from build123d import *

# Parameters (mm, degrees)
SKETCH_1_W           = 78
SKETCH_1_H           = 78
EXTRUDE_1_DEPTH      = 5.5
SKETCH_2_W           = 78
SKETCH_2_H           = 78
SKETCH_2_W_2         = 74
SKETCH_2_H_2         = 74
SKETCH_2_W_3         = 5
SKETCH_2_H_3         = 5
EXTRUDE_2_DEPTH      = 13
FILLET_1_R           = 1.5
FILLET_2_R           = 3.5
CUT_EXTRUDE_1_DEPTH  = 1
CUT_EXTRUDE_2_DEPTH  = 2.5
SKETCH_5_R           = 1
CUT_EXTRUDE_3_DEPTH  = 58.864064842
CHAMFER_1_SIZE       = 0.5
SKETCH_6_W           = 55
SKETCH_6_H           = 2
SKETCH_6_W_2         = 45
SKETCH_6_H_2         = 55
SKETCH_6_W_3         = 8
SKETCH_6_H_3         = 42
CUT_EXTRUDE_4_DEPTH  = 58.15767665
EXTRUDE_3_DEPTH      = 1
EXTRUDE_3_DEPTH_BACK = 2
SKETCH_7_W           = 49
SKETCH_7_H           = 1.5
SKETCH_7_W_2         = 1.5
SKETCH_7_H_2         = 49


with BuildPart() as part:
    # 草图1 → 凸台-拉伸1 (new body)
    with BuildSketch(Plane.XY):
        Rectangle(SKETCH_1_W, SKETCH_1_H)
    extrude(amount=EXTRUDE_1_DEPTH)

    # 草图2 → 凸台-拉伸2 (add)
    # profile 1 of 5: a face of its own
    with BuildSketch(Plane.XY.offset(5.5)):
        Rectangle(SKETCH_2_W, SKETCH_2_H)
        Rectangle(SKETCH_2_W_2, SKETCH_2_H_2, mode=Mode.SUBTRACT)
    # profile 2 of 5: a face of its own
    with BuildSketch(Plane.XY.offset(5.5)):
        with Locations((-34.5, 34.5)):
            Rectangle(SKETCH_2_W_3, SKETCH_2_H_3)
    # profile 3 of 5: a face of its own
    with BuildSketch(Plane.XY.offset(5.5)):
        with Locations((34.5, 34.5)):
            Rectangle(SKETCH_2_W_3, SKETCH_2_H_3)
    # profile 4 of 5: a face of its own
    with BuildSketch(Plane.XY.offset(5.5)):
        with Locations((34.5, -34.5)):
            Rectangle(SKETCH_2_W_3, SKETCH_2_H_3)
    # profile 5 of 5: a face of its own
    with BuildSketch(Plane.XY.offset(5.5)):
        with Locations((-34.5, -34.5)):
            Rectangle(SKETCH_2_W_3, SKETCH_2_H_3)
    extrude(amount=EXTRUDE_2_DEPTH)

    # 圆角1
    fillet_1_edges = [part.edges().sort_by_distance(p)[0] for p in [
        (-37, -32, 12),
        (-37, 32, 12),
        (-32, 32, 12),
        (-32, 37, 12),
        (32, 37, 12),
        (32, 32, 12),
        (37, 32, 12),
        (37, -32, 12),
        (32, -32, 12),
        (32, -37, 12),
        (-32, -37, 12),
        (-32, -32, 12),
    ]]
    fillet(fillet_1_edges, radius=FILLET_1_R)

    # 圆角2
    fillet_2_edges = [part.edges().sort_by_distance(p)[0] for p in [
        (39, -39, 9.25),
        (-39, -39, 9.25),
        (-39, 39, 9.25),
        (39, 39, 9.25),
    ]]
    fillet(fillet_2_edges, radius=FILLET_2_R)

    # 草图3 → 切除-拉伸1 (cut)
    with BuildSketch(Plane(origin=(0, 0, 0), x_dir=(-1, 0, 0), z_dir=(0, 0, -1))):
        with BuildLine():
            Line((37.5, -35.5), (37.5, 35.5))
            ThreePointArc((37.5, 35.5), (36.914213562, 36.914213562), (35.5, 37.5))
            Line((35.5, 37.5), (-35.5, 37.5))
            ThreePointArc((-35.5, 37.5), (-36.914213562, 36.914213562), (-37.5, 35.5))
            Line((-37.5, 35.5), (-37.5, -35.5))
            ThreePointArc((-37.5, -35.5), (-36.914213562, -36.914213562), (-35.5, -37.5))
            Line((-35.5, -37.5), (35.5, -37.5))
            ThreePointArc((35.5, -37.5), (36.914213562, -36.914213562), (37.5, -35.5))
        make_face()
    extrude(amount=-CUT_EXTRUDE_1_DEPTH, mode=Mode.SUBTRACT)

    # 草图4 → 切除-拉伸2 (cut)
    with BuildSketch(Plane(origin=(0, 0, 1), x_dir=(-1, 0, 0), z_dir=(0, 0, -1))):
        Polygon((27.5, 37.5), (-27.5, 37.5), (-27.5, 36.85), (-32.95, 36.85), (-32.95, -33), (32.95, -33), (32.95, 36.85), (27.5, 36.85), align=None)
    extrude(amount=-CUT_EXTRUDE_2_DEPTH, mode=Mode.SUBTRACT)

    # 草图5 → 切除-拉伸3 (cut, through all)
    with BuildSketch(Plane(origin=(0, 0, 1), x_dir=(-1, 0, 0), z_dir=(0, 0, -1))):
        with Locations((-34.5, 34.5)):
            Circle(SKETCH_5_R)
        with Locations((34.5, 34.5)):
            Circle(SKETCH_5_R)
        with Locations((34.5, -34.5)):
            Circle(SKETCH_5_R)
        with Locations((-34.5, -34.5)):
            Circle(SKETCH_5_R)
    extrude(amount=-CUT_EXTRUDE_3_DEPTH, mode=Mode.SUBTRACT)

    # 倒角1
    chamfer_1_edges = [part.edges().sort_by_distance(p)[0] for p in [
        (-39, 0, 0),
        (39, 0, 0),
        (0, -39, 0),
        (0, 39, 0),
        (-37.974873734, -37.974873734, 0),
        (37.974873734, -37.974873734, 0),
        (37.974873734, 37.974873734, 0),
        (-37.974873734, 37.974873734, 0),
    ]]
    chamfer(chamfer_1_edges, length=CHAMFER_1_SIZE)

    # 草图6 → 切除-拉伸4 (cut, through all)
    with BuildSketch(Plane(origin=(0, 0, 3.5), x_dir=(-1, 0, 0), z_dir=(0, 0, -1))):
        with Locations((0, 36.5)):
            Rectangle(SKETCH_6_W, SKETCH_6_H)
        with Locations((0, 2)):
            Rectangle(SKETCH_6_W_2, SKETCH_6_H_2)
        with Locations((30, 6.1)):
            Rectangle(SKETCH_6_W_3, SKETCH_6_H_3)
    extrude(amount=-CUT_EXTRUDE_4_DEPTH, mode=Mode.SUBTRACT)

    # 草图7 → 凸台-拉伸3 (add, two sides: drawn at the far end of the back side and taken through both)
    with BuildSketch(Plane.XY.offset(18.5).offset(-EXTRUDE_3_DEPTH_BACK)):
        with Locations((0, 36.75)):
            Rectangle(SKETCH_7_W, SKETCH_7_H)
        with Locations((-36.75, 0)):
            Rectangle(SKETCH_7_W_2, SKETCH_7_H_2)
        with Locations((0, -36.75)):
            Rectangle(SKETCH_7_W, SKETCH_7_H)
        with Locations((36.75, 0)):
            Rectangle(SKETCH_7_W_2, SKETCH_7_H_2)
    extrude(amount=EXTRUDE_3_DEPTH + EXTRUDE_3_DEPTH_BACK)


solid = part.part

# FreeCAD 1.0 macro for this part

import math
import FreeCAD as App
import Part
import Sketcher

V = App.Vector


def edges_at(feature, points):
    """Names of the edges that pass closest to the given points."""
    edges = feature.Shape.Edges
    near = lambda p: min(range(len(edges)), key=lambda i: edges[i].distToShape(Part.Vertex(*p))[0])
    return sorted({f"Edge{near(p) + 1}" for p in points})

doc = App.newDocument("Part")
body = doc.addObject("PartDesign::Body", "Body")

sketch1 = doc.addObject("Sketcher::SketchObject", "Sketch")
body.addObject(sketch1)
sketch1.AttachmentSupport = (doc.XY_Plane, [""])
sketch1.MapMode = "FlatFace"
sketch1.addGeometry([
    Part.LineSegment(V(-39, 39, 0), V(-39, -39, 0)),
    Part.LineSegment(V(-39, -39, 0), V(39, -39, 0)),
    Part.LineSegment(V(39, -39, 0), V(39, 39, 0)),
    Part.LineSegment(V(39, 39, 0), V(-39, 39, 0)),
], False)
sketch1.addConstraint([
    Sketcher.Constraint("Coincident", 0, 2, 1, 1),
    Sketcher.Constraint("Coincident", 1, 2, 2, 1),
    Sketcher.Constraint("Coincident", 2, 2, 3, 1),
    Sketcher.Constraint("Coincident", 3, 2, 0, 1),
    Sketcher.Constraint("Vertical", 0),
    Sketcher.Constraint("Horizontal", 1),
    Sketcher.Constraint("Vertical", 2),
    Sketcher.Constraint("Horizontal", 3),
    Sketcher.Constraint("Symmetric", 0, 2, 2, 2, -1, 1),
    Sketcher.Constraint("Equal", 3, 0),
    Sketcher.Constraint("DistanceX", 1, 1, 1, 2, 78.0),
])
pad1 = doc.addObject("PartDesign::Pad", "Pad")
body.addObject(pad1)
pad1.Profile = sketch1
pad1.Length = 5.5

sketch2 = doc.addObject("Sketcher::SketchObject", "Sketch001")
body.addObject(sketch2)
sketch2.AttachmentSupport = (doc.XY_Plane, [""])
sketch2.MapMode = "FlatFace"
sketch2.AttachmentOffset = App.Placement(V(0, 0, 5.5), App.Rotation())
sketch2.addGeometry([
    Part.LineSegment(V(-39, 39, 0), V(-39, -39, 0)),
    Part.LineSegment(V(-39, -39, 0), V(39, -39, 0)),
    Part.LineSegment(V(39, -39, 0), V(39, 39, 0)),
    Part.LineSegment(V(39, 39, 0), V(-39, 39, 0)),
    Part.LineSegment(V(32, -37, 0), V(-32, -37, 0)),
    Part.LineSegment(V(-32, -37, 0), V(-32, -32, 0)),
    Part.LineSegment(V(-32, -32, 0), V(-37, -32, 0)),
    Part.LineSegment(V(-37, -32, 0), V(-37, 32, 0)),
    Part.LineSegment(V(-37, 32, 0), V(-32, 32, 0)),
    Part.LineSegment(V(-32, 32, 0), V(-32, 37, 0)),
    Part.LineSegment(V(-32, 37, 0), V(32, 37, 0)),
    Part.LineSegment(V(32, 37, 0), V(32, 32, 0)),
    Part.LineSegment(V(32, 32, 0), V(37, 32, 0)),
    Part.LineSegment(V(37, 32, 0), V(37, -32, 0)),
    Part.LineSegment(V(37, -32, 0), V(32, -32, 0)),
    Part.LineSegment(V(32, -32, 0), V(32, -37, 0)),
], False)
sketch2.addConstraint([
    Sketcher.Constraint("Coincident", 0, 2, 1, 1),
    Sketcher.Constraint("Coincident", 1, 2, 2, 1),
    Sketcher.Constraint("Coincident", 2, 2, 3, 1),
    Sketcher.Constraint("Coincident", 3, 2, 0, 1),
    Sketcher.Constraint("Coincident", 4, 2, 5, 1),
    Sketcher.Constraint("Coincident", 5, 2, 6, 1),
    Sketcher.Constraint("Coincident", 6, 2, 7, 1),
    Sketcher.Constraint("Coincident", 7, 2, 8, 1),
    Sketcher.Constraint("Coincident", 8, 2, 9, 1),
    Sketcher.Constraint("Coincident", 9, 2, 10, 1),
    Sketcher.Constraint("Coincident", 10, 2, 11, 1),
    Sketcher.Constraint("Coincident", 11, 2, 12, 1),
    Sketcher.Constraint("Coincident", 12, 2, 13, 1),
    Sketcher.Constraint("Coincident", 13, 2, 14, 1),
    Sketcher.Constraint("Coincident", 14, 2, 15, 1),
    Sketcher.Constraint("Coincident", 15, 2, 4, 1),
    Sketcher.Constraint("Vertical", 0),
    Sketcher.Constraint("Horizontal", 1),
    Sketcher.Constraint("Vertical", 2),
    Sketcher.Constraint("Horizontal", 3),
    Sketcher.Constraint("Horizontal", 4),
    Sketcher.Constraint("Vertical", 5),
    Sketcher.Constraint("Horizontal", 6),
    Sketcher.Constraint("Vertical", 7),
    Sketcher.Constraint("Horizontal", 8),
    Sketcher.Constraint("Vertical", 9),
    Sketcher.Constraint("Horizontal", 10),
    Sketcher.Constraint("Vertical", 11),
    Sketcher.Constraint("Horizontal", 12),
    Sketcher.Constraint("Vertical", 13),
    Sketcher.Constraint("Horizontal", 14),
    Sketcher.Constraint("Vertical", 15),
    Sketcher.Constraint("Symmetric", 0, 2, 2, 2, -1, 1),
    Sketcher.Constraint("Symmetric", 4, 2, 10, 2, -1, 1),
    Sketcher.Constraint("Symmetric", 6, 2, 12, 2, -1, 1),
    Sketcher.Constraint("Symmetric", 8, 2, 14, 2, -1, 1),
    Sketcher.Constraint("Symmetric", 8, 2, 11, 2, -2),
    Sketcher.Constraint("Equal", 3, 0),
    Sketcher.Constraint("Equal", 14, 5),
    Sketcher.Constraint("Equal", 10, 7),
    Sketcher.Constraint("DistanceX", 1, 1, 1, 2, 78.0),
    Sketcher.Constraint("DistanceX", 4, 2, 4, 1, 64.0),
    Sketcher.Constraint("DistanceX", 6, 2, 6, 1, 5.0),
])
pad2 = doc.addObject("PartDesign::Pad", "Pad001")
body.addObject(pad2)
pad2.Profile = sketch2
pad2.Length = 13
doc.recompute()

fillet = doc.addObject("PartDesign::Fillet", "Fillet")
body.addObject(fillet)
fillet.Base = (pad2, edges_at(pad2, [
    (-37, -32, 12),
    (-37, 32, 12),
    (-32, 32, 12),
    (-32, 37, 12),
    (32, 37, 12),
    (32, 32, 12),
    (37, 32, 12),
    (37, -32, 12),
    (32, -32, 12),
    (32, -37, 12),
    (-32, -37, 12),
    (-32, -32, 12),
]))
fillet.Radius = 1.5
doc.recompute()

fillet2 = doc.addObject("PartDesign::Fillet", "Fillet001")
body.addObject(fillet2)
fillet2.Base = (fillet, edges_at(fillet, [
    (39, -39, 9.25),
    (-39, -39, 9.25),
    (-39, 39, 9.25),
    (39, 39, 9.25),
]))
fillet2.Radius = 3.5

sketch3 = doc.addObject("Sketcher::SketchObject", "Sketch002")
body.addObject(sketch3)
sketch3.AttachmentSupport = (doc.XY_Plane, [""])
sketch3.MapMode = "FlatFace"
sketch3.addGeometry([
    Part.LineSegment(V(-37.5, -35.5, 0), V(-37.5, 35.5, 0)),
    Part.ArcOfCircle(Part.Circle(V(-35.5, 35.5, 0), V(0, 0, 1), 2), math.radians(90), math.radians(180)),
    Part.LineSegment(V(-35.5, 37.5, 0), V(35.5, 37.5, 0)),
    Part.ArcOfCircle(Part.Circle(V(35.5, 35.5, 0), V(0, 0, 1), 2), math.radians(0), math.radians(90)),
    Part.LineSegment(V(37.5, 35.5, 0), V(37.5, -35.5, 0)),
    Part.ArcOfCircle(Part.Circle(V(35.5, -35.5, 0), V(0, 0, 1), 2), math.radians(-90), math.radians(0)),
    Part.LineSegment(V(35.5, -37.5, 0), V(-35.5, -37.5, 0)),
    Part.ArcOfCircle(Part.Circle(V(-35.5, -35.5, 0), V(0, 0, 1), 2), math.radians(-180), math.radians(-90)),
], False)
sketch3.addConstraint([
    Sketcher.Constraint("Tangent", 0, 2, 1, 2),
    Sketcher.Constraint("Tangent", 1, 1, 2, 1),
    Sketcher.Constraint("Tangent", 2, 2, 3, 2),
    Sketcher.Constraint("Tangent", 3, 1, 4, 1),
    Sketcher.Constraint("Tangent", 4, 2, 5, 2),
    Sketcher.Constraint("Tangent", 5, 1, 6, 1),
    Sketcher.Constraint("Tangent", 6, 2, 7, 2),
    Sketcher.Constraint("Tangent", 7, 1, 0, 1),
    Sketcher.Constraint("Vertical", 0),
    Sketcher.Constraint("Horizontal", 2),
    Sketcher.Constraint("Vertical", 4),
    Sketcher.Constraint("Horizontal", 6),
    Sketcher.Constraint("Equal", 1, 3),
    Sketcher.Constraint("Equal", 3, 5),
    Sketcher.Constraint("Equal", 5, 7),
    Sketcher.Constraint("Symmetric", 1, 3, 5, 3, -1, 1),
    Sketcher.Constraint("Equal", 6, 0),
    Sketcher.Constraint("Radius", 1, 2.0),
    Sketcher.Constraint("DistanceX", 2, 1, 2, 2, 71.0),
])
pocket1 = doc.addObject("PartDesign::Pocket", "Pocket")
body.addObject(pocket1)
pocket1.Profile = sketch3
pocket1.Length = 1
pocket1.Reversed = True

sketch4 = doc.addObject("Sketcher::SketchObject", "Sketch003")
body.addObject(sketch4)
sketch4.AttachmentSupport = (doc.XY_Plane, [""])
sketch4.MapMode = "FlatFace"
sketch4.AttachmentOffset = App.Placement(V(0, 0, 1), App.Rotation())
sketch4.addGeometry([
    Part.LineSegment(V(-27.5, 37.5, 0), V(27.5, 37.5, 0)),
    Part.LineSegment(V(27.5, 37.5, 0), V(27.5, 36.9, 0)),
    Part.LineSegment(V(27.5, 36.9, 0), V(33, 36.9, 0)),
    Part.LineSegment(V(33, 36.9, 0), V(33, -33, 0)),
    Part.LineSegment(V(33, -33, 0), V(-33, -33, 0)),
    Part.LineSegment(V(-33, -33, 0), V(-33, 36.9, 0)),
    Part.LineSegment(V(-33, 36.9, 0), V(-27.5, 36.9, 0)),
    Part.LineSegment(V(-27.5, 36.9, 0), V(-27.5, 37.5, 0)),
], False)
sketch4.addConstraint([
    Sketcher.Constraint("Coincident", 0, 2, 1, 1),
    Sketcher.Constraint("Coincident", 1, 2, 2, 1),
    Sketcher.Constraint("Coincident", 2, 2, 3, 1),
    Sketcher.Constraint("Coincident", 3, 2, 4, 1),
    Sketcher.Constraint("Coincident", 4, 2, 5, 1),
    Sketcher.Constraint("Coincident", 5, 2, 6, 1),
    Sketcher.Constraint("Coincident", 6, 2, 7, 1),
    Sketcher.Constraint("Coincident", 7, 2, 0, 1),
    Sketcher.Constraint("Horizontal", 0),
    Sketcher.Constraint("Vertical", 1),
    Sketcher.Constraint("Horizontal", 2),
    Sketcher.Constraint("Vertical", 3),
    Sketcher.Constraint("Horizontal", 4),
    Sketcher.Constraint("Vertical", 5),
    Sketcher.Constraint("Horizontal", 6),
    Sketcher.Constraint("Vertical", 7),
    Sketcher.Constraint("Symmetric", 2, 2, 5, 2, -2),
    Sketcher.Constraint("Equal", 2, 6),
    Sketcher.Constraint("DistanceX", 0, 1, 0, 2, 55.0),
    Sketcher.Constraint("DistanceX", 4, 2, 4, 1, 65.9),
    Sketcher.Constraint("DistanceY", 3, 2, -1, 1, 33.0),
    Sketcher.Constraint("DistanceY", 1, 2, 1, 1, 0.65),
    Sketcher.Constraint("DistanceY", 3, 2, 3, 1, 69.85),
])
pocket2 = doc.addObject("PartDesign::Pocket", "Pocket001")
body.addObject(pocket2)
pocket2.Profile = sketch4
pocket2.Length = 2.5
pocket2.Reversed = True

sketch5 = doc.addObject("Sketcher::SketchObject", "Sketch004")
body.addObject(sketch5)
sketch5.AttachmentSupport = (doc.XY_Plane, [""])
sketch5.MapMode = "FlatFace"
sketch5.AttachmentOffset = App.Placement(V(0, 0, 1), App.Rotation())
sketch5.addGeometry([
    Part.Circle(V(34.5, 34.5, 0), V(0, 0, 1), 1),
    Part.Circle(V(-34.5, 34.5, 0), V(0, 0, 1), 1),
    Part.Circle(V(-34.5, -34.5, 0), V(0, 0, 1), 1),
    Part.Circle(V(34.5, -34.5, 0), V(0, 0, 1), 1),
], False)
sketch5.addConstraint([
    Sketcher.Constraint("Equal", 0, 1),
    Sketcher.Constraint("Equal", 1, 2),
    Sketcher.Constraint("Equal", 2, 3),
    Sketcher.Constraint("Symmetric", 0, 3, 2, 3, -1, 1),
    Sketcher.Constraint("Symmetric", 1, 3, 3, 3, -1, 1),
    Sketcher.Constraint("Symmetric", 0, 3, 1, 3, -2),
    Sketcher.Constraint("Diameter", 0, 2.0),
    Sketcher.Constraint("DistanceX", 1, 3, 0, 3, 69.0),
    Sketcher.Constraint("DistanceY", 2, 3, 1, 3, 69.0),
])
pocket3 = doc.addObject("PartDesign::Pocket", "Pocket002")
body.addObject(pocket3)
pocket3.Profile = sketch5
pocket3.Type = "ThroughAll"
pocket3.Reversed = True
doc.recompute()

chamfer = doc.addObject("PartDesign::Chamfer", "Chamfer")
body.addObject(chamfer)
chamfer.Base = (pocket3, edges_at(pocket3, [
    (-39, 0, 0),
    (39, 0, 0),
    (0, -39, 0),
    (0, 39, 0),
    (-37.975, -37.975, 0),
    (37.975, -37.975, 0),
    (37.975, 37.975, 0),
    (-37.975, 37.975, 0),
]))
chamfer.Size = 0.5

sketch6 = doc.addObject("Sketcher::SketchObject", "Sketch005")
body.addObject(sketch6)
sketch6.AttachmentSupport = (doc.XY_Plane, [""])
sketch6.MapMode = "FlatFace"
sketch6.AttachmentOffset = App.Placement(V(0, 0, 3.5), App.Rotation())
sketch6.addGeometry([
    Part.LineSegment(V(27.5, 37.5, 0), V(27.5, 35.5, 0)),
    Part.LineSegment(V(27.5, 35.5, 0), V(-27.5, 35.5, 0)),
    Part.LineSegment(V(-27.5, 35.5, 0), V(-27.5, 37.5, 0)),
    Part.LineSegment(V(-27.5, 37.5, 0), V(27.5, 37.5, 0)),
    Part.LineSegment(V(22.5, 29.5, 0), V(22.5, -25.5, 0)),
    Part.LineSegment(V(22.5, -25.5, 0), V(-22.5, -25.5, 0)),
    Part.LineSegment(V(-22.5, -25.5, 0), V(-22.5, 29.5, 0)),
    Part.LineSegment(V(-22.5, 29.5, 0), V(22.5, 29.5, 0)),
    Part.LineSegment(V(-26, 27.1, 0), V(-26, -14.9, 0)),
    Part.LineSegment(V(-26, -14.9, 0), V(-34, -14.9, 0)),
    Part.LineSegment(V(-34, -14.9, 0), V(-34, 27.1, 0)),
    Part.LineSegment(V(-34, 27.1, 0), V(-26, 27.1, 0)),
], False)
sketch6.addConstraint([
    Sketcher.Constraint("Coincident", 0, 2, 1, 1),
    Sketcher.Constraint("Coincident", 1, 2, 2, 1),
    Sketcher.Constraint("Coincident", 2, 2, 3, 1),
    Sketcher.Constraint("Coincident", 3, 2, 0, 1),
    Sketcher.Constraint("Coincident", 4, 2, 5, 1),
    Sketcher.Constraint("Coincident", 5, 2, 6, 1),
    Sketcher.Constraint("Coincident", 6, 2, 7, 1),
    Sketcher.Constraint("Coincident", 7, 2, 4, 1),
    Sketcher.Constraint("Coincident", 8, 2, 9, 1),
    Sketcher.Constraint("Coincident", 9, 2, 10, 1),
    Sketcher.Constraint("Coincident", 10, 2, 11, 1),
    Sketcher.Constraint("Coincident", 11, 2, 8, 1),
    Sketcher.Constraint("Vertical", 0),
    Sketcher.Constraint("Horizontal", 1),
    Sketcher.Constraint("Vertical", 2),
    Sketcher.Constraint("Horizontal", 3),
    Sketcher.Constraint("Vertical", 4),
    Sketcher.Constraint("Horizontal", 5),
    Sketcher.Constraint("Vertical", 6),
    Sketcher.Constraint("Horizontal", 7),
    Sketcher.Constraint("Vertical", 8),
    Sketcher.Constraint("Horizontal", 9),
    Sketcher.Constraint("Vertical", 10),
    Sketcher.Constraint("Horizontal", 11),
    Sketcher.Constraint("Equal", 3, 4),
    Sketcher.Constraint("DistanceX", 1, 2, 1, 1, 55.0),
    Sketcher.Constraint("DistanceX", 5, 2, 5, 1, 45.0),
    Sketcher.Constraint("DistanceX", 9, 2, 9, 1, 8.0),
    Sketcher.Constraint("DistanceY", 0, 2, 0, 1, 2.0),
    Sketcher.Constraint("DistanceY", 8, 2, 8, 1, 42.0),
    Sketcher.Constraint("DistanceX", 8, 2, -1, 1, 26.0),
    Sketcher.Constraint("DistanceX", 4, 2, 0, 2, 5.0),
    Sketcher.Constraint("DistanceY", 4, 2, 0, 2, 61.0),
    Sketcher.Constraint("DistanceX", -1, 1, 0, 2, 27.5),
    Sketcher.Constraint("DistanceY", -1, 1, 0, 2, 35.5),
    Sketcher.Constraint("DistanceY", 8, 2, -1, 1, 14.9),
])
pocket4 = doc.addObject("PartDesign::Pocket", "Pocket003")
body.addObject(pocket4)
pocket4.Profile = sketch6
pocket4.Type = "ThroughAll"
pocket4.Reversed = True

sketch7 = doc.addObject("Sketcher::SketchObject", "Sketch006")
body.addObject(sketch7)
sketch7.AttachmentSupport = (doc.XY_Plane, [""])
sketch7.MapMode = "FlatFace"
sketch7.AttachmentOffset = App.Placement(V(0, 0, 18.5), App.Rotation())
sketch7.addGeometry([
    Part.LineSegment(V(-24.5, 37.5, 0), V(-24.5, 36, 0)),
    Part.LineSegment(V(-24.5, 36, 0), V(24.5, 36, 0)),
    Part.LineSegment(V(24.5, 36, 0), V(24.5, 37.5, 0)),
    Part.LineSegment(V(24.5, 37.5, 0), V(-24.5, 37.5, 0)),
    Part.LineSegment(V(-37.5, 24.5, 0), V(-37.5, -24.5, 0)),
    Part.LineSegment(V(-37.5, -24.5, 0), V(-36, -24.5, 0)),
    Part.LineSegment(V(-36, -24.5, 0), V(-36, 24.5, 0)),
    Part.LineSegment(V(-36, 24.5, 0), V(-37.5, 24.5, 0)),
    Part.LineSegment(V(-24.5, -36, 0), V(-24.5, -37.5, 0)),
    Part.LineSegment(V(-24.5, -37.5, 0), V(24.5, -37.5, 0)),
    Part.LineSegment(V(24.5, -37.5, 0), V(24.5, -36, 0)),
    Part.LineSegment(V(24.5, -36, 0), V(-24.5, -36, 0)),
    Part.LineSegment(V(36, 24.5, 0), V(36, -24.5, 0)),
    Part.LineSegment(V(36, -24.5, 0), V(37.5, -24.5, 0)),
    Part.LineSegment(V(37.5, -24.5, 0), V(37.5, 24.5, 0)),
    Part.LineSegment(V(37.5, 24.5, 0), V(36, 24.5, 0)),
], False)
sketch7.addConstraint([
    Sketcher.Constraint("Coincident", 0, 2, 1, 1),
    Sketcher.Constraint("Coincident", 1, 2, 2, 1),
    Sketcher.Constraint("Coincident", 2, 2, 3, 1),
    Sketcher.Constraint("Coincident", 3, 2, 0, 1),
    Sketcher.Constraint("Coincident", 4, 2, 5, 1),
    Sketcher.Constraint("Coincident", 5, 2, 6, 1),
    Sketcher.Constraint("Coincident", 6, 2, 7, 1),
    Sketcher.Constraint("Coincident", 7, 2, 4, 1),
    Sketcher.Constraint("Coincident", 8, 2, 9, 1),
    Sketcher.Constraint("Coincident", 9, 2, 10, 1),
    Sketcher.Constraint("Coincident", 10, 2, 11, 1),
    Sketcher.Constraint("Coincident", 11, 2, 8, 1),
    Sketcher.Constraint("Coincident", 12, 2, 13, 1),
    Sketcher.Constraint("Coincident", 13, 2, 14, 1),
    Sketcher.Constraint("Coincident", 14, 2, 15, 1),
    Sketcher.Constraint("Coincident", 15, 2, 12, 1),
    Sketcher.Constraint("Vertical", 0),
    Sketcher.Constraint("Horizontal", 1),
    Sketcher.Constraint("Vertical", 2),
    Sketcher.Constraint("Horizontal", 3),
    Sketcher.Constraint("Vertical", 4),
    Sketcher.Constraint("Horizontal", 5),
    Sketcher.Constraint("Vertical", 6),
    Sketcher.Constraint("Horizontal", 7),
    Sketcher.Constraint("Vertical", 8),
    Sketcher.Constraint("Horizontal", 9),
    Sketcher.Constraint("Vertical", 10),
    Sketcher.Constraint("Horizontal", 11),
    Sketcher.Constraint("Vertical", 12),
    Sketcher.Constraint("Horizontal", 13),
    Sketcher.Constraint("Vertical", 14),
    Sketcher.Constraint("Horizontal", 15),
    Sketcher.Constraint("Symmetric", 2, 2, 8, 2, -1, 1),
    Sketcher.Constraint("Symmetric", 0, 2, 10, 2, -1, 1),
    Sketcher.Constraint("Symmetric", 6, 2, 12, 2, -1, 1),
    Sketcher.Constraint("Symmetric", 4, 2, 14, 2, -1, 1),
    Sketcher.Constraint("Horizontal", 5, 2, 12, 2),
    Sketcher.Constraint("Vertical", 3, 2, 8, 2),
    Sketcher.Constraint("Equal", 15, 0),
    Sketcher.Constraint("Equal", 11, 4),
    Sketcher.Constraint("DistanceX", 1, 1, 1, 2, 49.0),
    Sketcher.Constraint("DistanceX", 5, 1, 5, 2, 1.5),
    Sketcher.Constraint("DistanceY", -1, 1, 0, 2, 36.0),
    Sketcher.Constraint("DistanceX", 5, 2, -1, 1, 36.0),
])
pad3 = doc.addObject("PartDesign::Pad", "Pad002")
body.addObject(pad3)
pad3.Profile = sketch7
pad3.Type = "TwoLengths"
pad3.Length = 1
pad3.Length2 = 2

doc.recompute()
